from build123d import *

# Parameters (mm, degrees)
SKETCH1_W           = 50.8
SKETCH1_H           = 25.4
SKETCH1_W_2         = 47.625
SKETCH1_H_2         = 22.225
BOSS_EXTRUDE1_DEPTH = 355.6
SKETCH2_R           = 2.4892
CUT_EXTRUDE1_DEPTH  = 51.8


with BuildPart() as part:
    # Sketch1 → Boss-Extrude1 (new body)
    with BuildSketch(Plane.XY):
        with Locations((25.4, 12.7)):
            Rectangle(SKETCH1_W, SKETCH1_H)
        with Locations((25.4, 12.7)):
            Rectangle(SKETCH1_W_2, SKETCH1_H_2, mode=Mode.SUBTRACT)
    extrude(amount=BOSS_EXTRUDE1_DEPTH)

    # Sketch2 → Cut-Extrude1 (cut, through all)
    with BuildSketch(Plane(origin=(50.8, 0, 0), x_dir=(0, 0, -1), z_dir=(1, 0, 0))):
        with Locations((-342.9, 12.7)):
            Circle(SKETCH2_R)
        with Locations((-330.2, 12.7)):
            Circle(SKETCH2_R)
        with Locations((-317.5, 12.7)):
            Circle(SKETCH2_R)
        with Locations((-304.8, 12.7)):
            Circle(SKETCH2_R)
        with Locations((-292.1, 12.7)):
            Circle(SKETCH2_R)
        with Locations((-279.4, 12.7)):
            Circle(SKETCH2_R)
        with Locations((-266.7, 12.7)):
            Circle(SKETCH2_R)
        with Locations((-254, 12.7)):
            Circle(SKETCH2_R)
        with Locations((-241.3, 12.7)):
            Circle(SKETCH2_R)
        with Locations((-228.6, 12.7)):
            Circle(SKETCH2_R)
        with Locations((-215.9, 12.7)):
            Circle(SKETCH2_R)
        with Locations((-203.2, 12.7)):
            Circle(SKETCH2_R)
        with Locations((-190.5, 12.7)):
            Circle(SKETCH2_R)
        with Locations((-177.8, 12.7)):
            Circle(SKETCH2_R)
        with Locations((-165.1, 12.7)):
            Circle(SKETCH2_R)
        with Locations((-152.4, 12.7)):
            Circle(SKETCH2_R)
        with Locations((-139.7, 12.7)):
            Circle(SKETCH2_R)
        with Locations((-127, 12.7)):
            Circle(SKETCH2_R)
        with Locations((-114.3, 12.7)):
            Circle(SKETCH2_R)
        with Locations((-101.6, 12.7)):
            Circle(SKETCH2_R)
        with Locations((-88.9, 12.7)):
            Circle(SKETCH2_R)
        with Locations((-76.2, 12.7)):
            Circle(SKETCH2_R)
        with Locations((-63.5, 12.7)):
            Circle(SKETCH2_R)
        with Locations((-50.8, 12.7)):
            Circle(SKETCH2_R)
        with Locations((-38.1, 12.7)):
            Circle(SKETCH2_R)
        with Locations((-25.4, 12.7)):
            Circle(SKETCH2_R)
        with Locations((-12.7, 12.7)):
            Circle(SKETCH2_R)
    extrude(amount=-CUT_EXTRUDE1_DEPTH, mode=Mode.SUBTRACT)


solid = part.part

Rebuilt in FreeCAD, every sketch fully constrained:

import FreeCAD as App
import Part
import Sketcher
from FreeCAD import Vector
Q = App.Units.Quantity


def add_polygon(sketch, points):
    """Adds a closed chain of lines whose ends are joined by coincident constraints."""
    first, n = sketch.GeometryCount, len(points)
    for a, b in zip(points, points[1:] + points[:1]):
        sketch.addGeometry(Part.LineSegment(App.Vector(*a, 0), App.Vector(*b, 0)), False)
    for i in range(n):
        sketch.addConstraint(Sketcher.Constraint("Coincident", first + i, 2, first + (i + 1) % n, 1))

doc = App.newDocument("Part")
body = doc.addObject("PartDesign::Body", "Body")

sketch1 = body.newObject("Sketcher::SketchObject", "Sketch")
sketch1.AttachmentSupport = (doc.getObject("XY_Plane"), [""])
sketch1.MapMode = "FlatFace"
add_polygon(sketch1, [(0, 25), (0, 0), (51, 0), (51, 25)])
add_polygon(sketch1, [(49, 2), (2, 2), (2, 24), (49, 24)])
sketch1.addConstraint([
    Sketcher.Constraint("Vertical", 0),
    Sketcher.Constraint("Horizontal", 1),
    Sketcher.Constraint("Vertical", 2),
    Sketcher.Constraint("Horizontal", 3),
    Sketcher.Constraint("Horizontal", 4),
    Sketcher.Constraint("Vertical", 5),
    Sketcher.Constraint("Horizontal", 6),
    Sketcher.Constraint("Vertical", 7),
    Sketcher.Constraint("Coincident", 0, 2, -1, 1),
    Sketcher.Constraint("DistanceX", 1, 1, 1, 2, Q("2 in")),
    Sketcher.Constraint("DistanceY", 0, 2, 0, 1, Q("1 in")),
    Sketcher.Constraint("DistanceX", 4, 2, 4, 1, Q("1.875 in")),
    Sketcher.Constraint("DistanceY", 5, 1, 5, 2, Q("0.875 in")),
    Sketcher.Constraint("DistanceX", -1, 1, 4, 2, Q("0.0625 in")),
    Sketcher.Constraint("DistanceY", -1, 1, 4, 2, Q("0.0625 in")),
])
pad1 = body.newObject("PartDesign::Pad", "Pad")
pad1.Profile = sketch1
pad1.Length = Q("14 in")

sketch2 = body.newObject("Sketcher::SketchObject", "Sketch001")
sketch2.AttachmentSupport = (doc.getObject("YZ_Plane"), [""])
sketch2.MapMode = "FlatFace"
sketch2.AttachmentOffset = App.Placement(Vector(0, 0, 2 * 25.4), App.Rotation())
sketch2.addGeometry([
    Part.Circle(Vector(12.7, 342.9, 0), Vector(0, 0, 1), 2.5),
    Part.Circle(Vector(12.7, 330.2, 0), Vector(0, 0, 1), 2.5),
    Part.Circle(Vector(12.7, 317.5, 0), Vector(0, 0, 1), 2.5),
    Part.Circle(Vector(12.7, 304.8, 0), Vector(0, 0, 1), 2.5),
    Part.Circle(Vector(12.7, 292.1, 0), Vector(0, 0, 1), 2.5),
    Part.Circle(Vector(12.7, 279.4, 0), Vector(0, 0, 1), 2.5),
    Part.Circle(Vector(12.7, 266.7, 0), Vector(0, 0, 1), 2.5),
    Part.Circle(Vector(12.7, 254, 0), Vector(0, 0, 1), 2.5),
    Part.Circle(Vector(12.7, 241.3, 0), Vector(0, 0, 1), 2.5),
    Part.Circle(Vector(12.7, 228.6, 0), Vector(0, 0, 1), 2.5),
    Part.Circle(Vector(12.7, 215.9, 0), Vector(0, 0, 1), 2.5),
    Part.Circle(Vector(12.7, 203.2, 0), Vector(0, 0, 1), 2.5),
    Part.Circle(Vector(12.7, 190.5, 0), Vector(0, 0, 1), 2.5),
    Part.Circle(Vector(12.7, 177.8, 0), Vector(0, 0, 1), 2.5),
    Part.Circle(Vector(12.7, 165.1, 0), Vector(0, 0, 1), 2.5),
    Part.Circle(Vector(12.7, 152.4, 0), Vector(0, 0, 1), 2.5),
    Part.Circle(Vector(12.7, 139.7, 0), Vector(0, 0, 1), 2.5),
    Part.Circle(Vector(12.7, 127, 0), Vector(0, 0, 1), 2.5),
    Part.Circle(Vector(12.7, 114.3, 0), Vector(0, 0, 1), 2.5),
    Part.Circle(Vector(12.7, 101.6, 0), Vector(0, 0, 1), 2.5),
    Part.Circle(Vector(12.7, 88.9, 0), Vector(0, 0, 1), 2.5),
    Part.Circle(Vector(12.7, 76.2, 0), Vector(0, 0, 1), 2.5),
    Part.Circle(Vector(12.7, 63.5, 0), Vector(0, 0, 1), 2.5),
    Part.Circle(Vector(12.7, 50.8, 0), Vector(0, 0, 1), 2.5),
    Part.Circle(Vector(12.7, 38.1, 0), Vector(0, 0, 1), 2.5),
    Part.Circle(Vector(12.7, 25.4, 0), Vector(0, 0, 1), 2.5),
    Part.Circle(Vector(12.7, 12.7, 0), Vector(0, 0, 1), 2.5),
], False)
sketch2.addConstraint([
    Sketcher.Constraint("Equal", 0, 1),
    Sketcher.Constraint("Equal", 1, 2),
    Sketcher.Constraint("Equal", 2, 3),
    Sketcher.Constraint("Equal", 3, 4),
    Sketcher.Constraint("Equal", 4, 5),
    Sketcher.Constraint("Equal", 5, 6),
    Sketcher.Constraint("Equal", 6, 7),
    Sketcher.Constraint("Equal", 7, 8),
    Sketcher.Constraint("Equal", 8, 9),
    Sketcher.Constraint("Equal", 9, 10),
    Sketcher.Constraint("Equal", 10, 11),
    Sketcher.Constraint("Equal", 11, 12),
    Sketcher.Constraint("Equal", 12, 13),
    Sketcher.Constraint("Equal", 13, 14),
    Sketcher.Constraint("Equal", 14, 15),
    Sketcher.Constraint("Equal", 15, 16),
    Sketcher.Constraint("Equal", 16, 17),
    Sketcher.Constraint("Equal", 17, 18),
    Sketcher.Constraint("Equal", 18, 19),
    Sketcher.Constraint("Equal", 19, 20),
    Sketcher.Constraint("Equal", 20, 21),
    Sketcher.Constraint("Equal", 21, 22),
    Sketcher.Constraint("Equal", 22, 23),
    Sketcher.Constraint("Equal", 23, 24),
    Sketcher.Constraint("Equal", 24, 25),
    Sketcher.Constraint("Equal", 25, 26),
    Sketcher.Constraint("Vertical", 0, 3, 1, 3),
    Sketcher.Constraint("Vertical", 1, 3, 2, 3),
    Sketcher.Constraint("Vertical", 2, 3, 3, 3),
    Sketcher.Constraint("Vertical", 3, 3, 4, 3),
    Sketcher.Constraint("Vertical", 4, 3, 5, 3),
    Sketcher.Constraint("Vertical", 5, 3, 6, 3),
    Sketcher.Constraint("Vertical", 6, 3, 7, 3),
    Sketcher.Constraint("Vertical", 7, 3, 8, 3),
    Sketcher.Constraint("Vertical", 8, 3, 9, 3),
    Sketcher.Constraint("Vertical", 9, 3, 10, 3),
    Sketcher.Constraint("Vertical", 10, 3, 11, 3),
    Sketcher.Constraint("Vertical", 11, 3, 12, 3),
    Sketcher.Constraint("Vertical", 12, 3, 13, 3),
    Sketcher.Constraint("Vertical", 13, 3, 14, 3),
    Sketcher.Constraint("Vertical", 14, 3, 15, 3),
    Sketcher.Constraint("Vertical", 15, 3, 16, 3),
    Sketcher.Constraint("Vertical", 16, 3, 17, 3),
    Sketcher.Constraint("Vertical", 17, 3, 18, 3),
    Sketcher.Constraint("Vertical", 18, 3, 19, 3),
    Sketcher.Constraint("Vertical", 19, 3, 20, 3),
    Sketcher.Constraint("Vertical", 20, 3, 21, 3),
    Sketcher.Constraint("Vertical", 21, 3, 22, 3),
    Sketcher.Constraint("Vertical", 22, 3, 23, 3),
    Sketcher.Constraint("Vertical", 23, 3, 24, 3),
    Sketcher.Constraint("Vertical", 24, 3, 25, 3),
    Sketcher.Constraint("Vertical", 25, 3, 26, 3),
    Sketcher.Constraint("Diameter", 0, Q("0.196 in")),
    Sketcher.Constraint("DistanceY", -1, 1, 1, 3, Q("13 in")),
    Sketcher.Constraint("DistanceY", -1, 1, 3, 3, Q("12 in")),
    Sketcher.Constraint("DistanceY", -1, 1, 5, 3, Q("11 in")),
    Sketcher.Constraint("DistanceY", -1, 1, 7, 3, Q("10 in")),
    Sketcher.Constraint("DistanceY", -1, 1, 9, 3, Q("9 in")),
    Sketcher.Constraint("DistanceY", -1, 1, 11, 3, Q("8 in")),
    Sketcher.Constraint("DistanceY", -1, 1, 13, 3, Q("7 in")),
    Sketcher.Constraint("DistanceY", -1, 1, 15, 3, Q("6 in")),
    Sketcher.Constraint("DistanceY", -1, 1, 17, 3, Q("5 in")),
    Sketcher.Constraint("DistanceY", -1, 1, 19, 3, Q("4 in")),
    Sketcher.Constraint("DistanceY", -1, 1, 21, 3, Q("3 in")),
    Sketcher.Constraint("DistanceY", -1, 1, 23, 3, Q("2 in")),
    Sketcher.Constraint("DistanceY", -1, 1, 25, 3, Q("1 in")),
    Sketcher.Constraint("DistanceY", 2, 3, 0, 3, Q("1 in")),
    Sketcher.Constraint("DistanceY", 4, 3, 2, 3, Q("1 in")),
    Sketcher.Constraint("DistanceY", 6, 3, 4, 3, Q("1 in")),
    Sketcher.Constraint("DistanceY", 8, 3, 6, 3, Q("1 in")),
    Sketcher.Constraint("DistanceY", 10, 3, 8, 3, Q("1 in")),
    Sketcher.Constraint("DistanceY", 12, 3, 10, 3, Q("1 in")),
    Sketcher.Constraint("DistanceY", 14, 3, 12, 3, Q("1 in")),
    Sketcher.Constraint("DistanceY", 16, 3, 14, 3, Q("1 in")),
    Sketcher.Constraint("DistanceY", 18, 3, 16, 3, Q("1 in")),
    Sketcher.Constraint("DistanceY", 20, 3, 18, 3, Q("1 in")),
    Sketcher.Constraint("DistanceY", 22, 3, 20, 3, Q("1 in")),
    Sketcher.Constraint("DistanceY", 24, 3, 22, 3, Q("1 in")),
    Sketcher.Constraint("DistanceY", 26, 3, 24, 3, Q("1 in")),
    Sketcher.Constraint("DistanceX", -1, 1, 0, 3, Q("0.5 in")),
    Sketcher.Constraint("DistanceY", -1, 1, 0, 3, Q("13.5 in")),
])
pocket1 = body.newObject("PartDesign::Pocket", "Pocket")
pocket1.Profile = sketch2
pocket1.Type = "ThroughAll"

doc.recompute()
